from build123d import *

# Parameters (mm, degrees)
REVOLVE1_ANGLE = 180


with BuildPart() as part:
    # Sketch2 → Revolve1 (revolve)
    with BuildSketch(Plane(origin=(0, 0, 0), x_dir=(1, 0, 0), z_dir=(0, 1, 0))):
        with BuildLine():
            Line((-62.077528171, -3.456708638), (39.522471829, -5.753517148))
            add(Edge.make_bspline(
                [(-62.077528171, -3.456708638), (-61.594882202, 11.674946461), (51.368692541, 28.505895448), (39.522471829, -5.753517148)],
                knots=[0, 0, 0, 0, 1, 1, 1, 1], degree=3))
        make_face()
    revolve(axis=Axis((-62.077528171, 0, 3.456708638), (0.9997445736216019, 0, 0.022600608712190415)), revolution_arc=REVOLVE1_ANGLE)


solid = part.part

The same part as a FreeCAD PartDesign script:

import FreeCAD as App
import Part
import Sketcher

doc = App.newDocument("Part")
body = doc.addObject("PartDesign::Body", "Body")

sketch1 = doc.addObject("Sketcher::SketchObject", "Sketch")
body.addObject(sketch1)
sketch1.AttachmentSupport = (doc.XZ_Plane, [""])
sketch1.MapMode = "FlatFace"
sketch1.addGeometry(Part.LineSegment(App.Vector(-62.077528, 3.456709, 0), App.Vector(39.522472, 5.753517, 0)), False)
sketch1.addGeometry(Part.BSplineCurve([App.Vector(-62.077528, 3.456709, 0), App.Vector(-61.594882, -11.674946, 0), App.Vector(51.368693, -28.505895, 0), App.Vector(39.522472, 5.753517, 0)], [4, 4], [0, 1], False, 3, [1, 1, 1, 1], False), False)
sketch1.addGeometry(Part.LineSegment(App.Vector(-62.077528, 3.456709, 0), App.Vector(39.522472, 5.753517, 0)), True)
sketch1.addConstraint(Sketcher.Constraint("Block", 1))
sketch1.addConstraint(Sketcher.Constraint("Coincident", 0, 1, 1, 1))
sketch1.addConstraint(Sketcher.Constraint("Coincident", 1, 2, 0, 2))
sketch1.addConstraint(Sketcher.Constraint("Coincident", 2, 1, 0, 1))
sketch1.addConstraint(Sketcher.Constraint("Parallel", 0, 2))
sketch1.addConstraint(Sketcher.Constraint("Equal", 0, 2))
revolution = doc.addObject("PartDesign::Revolution", "Revolution")
body.addObject(revolution)
revolution.Profile = sketch1
revolution.ReferenceAxis = (sketch1, ["Axis0"])
revolution.Angle = 180

doc.recompute()
